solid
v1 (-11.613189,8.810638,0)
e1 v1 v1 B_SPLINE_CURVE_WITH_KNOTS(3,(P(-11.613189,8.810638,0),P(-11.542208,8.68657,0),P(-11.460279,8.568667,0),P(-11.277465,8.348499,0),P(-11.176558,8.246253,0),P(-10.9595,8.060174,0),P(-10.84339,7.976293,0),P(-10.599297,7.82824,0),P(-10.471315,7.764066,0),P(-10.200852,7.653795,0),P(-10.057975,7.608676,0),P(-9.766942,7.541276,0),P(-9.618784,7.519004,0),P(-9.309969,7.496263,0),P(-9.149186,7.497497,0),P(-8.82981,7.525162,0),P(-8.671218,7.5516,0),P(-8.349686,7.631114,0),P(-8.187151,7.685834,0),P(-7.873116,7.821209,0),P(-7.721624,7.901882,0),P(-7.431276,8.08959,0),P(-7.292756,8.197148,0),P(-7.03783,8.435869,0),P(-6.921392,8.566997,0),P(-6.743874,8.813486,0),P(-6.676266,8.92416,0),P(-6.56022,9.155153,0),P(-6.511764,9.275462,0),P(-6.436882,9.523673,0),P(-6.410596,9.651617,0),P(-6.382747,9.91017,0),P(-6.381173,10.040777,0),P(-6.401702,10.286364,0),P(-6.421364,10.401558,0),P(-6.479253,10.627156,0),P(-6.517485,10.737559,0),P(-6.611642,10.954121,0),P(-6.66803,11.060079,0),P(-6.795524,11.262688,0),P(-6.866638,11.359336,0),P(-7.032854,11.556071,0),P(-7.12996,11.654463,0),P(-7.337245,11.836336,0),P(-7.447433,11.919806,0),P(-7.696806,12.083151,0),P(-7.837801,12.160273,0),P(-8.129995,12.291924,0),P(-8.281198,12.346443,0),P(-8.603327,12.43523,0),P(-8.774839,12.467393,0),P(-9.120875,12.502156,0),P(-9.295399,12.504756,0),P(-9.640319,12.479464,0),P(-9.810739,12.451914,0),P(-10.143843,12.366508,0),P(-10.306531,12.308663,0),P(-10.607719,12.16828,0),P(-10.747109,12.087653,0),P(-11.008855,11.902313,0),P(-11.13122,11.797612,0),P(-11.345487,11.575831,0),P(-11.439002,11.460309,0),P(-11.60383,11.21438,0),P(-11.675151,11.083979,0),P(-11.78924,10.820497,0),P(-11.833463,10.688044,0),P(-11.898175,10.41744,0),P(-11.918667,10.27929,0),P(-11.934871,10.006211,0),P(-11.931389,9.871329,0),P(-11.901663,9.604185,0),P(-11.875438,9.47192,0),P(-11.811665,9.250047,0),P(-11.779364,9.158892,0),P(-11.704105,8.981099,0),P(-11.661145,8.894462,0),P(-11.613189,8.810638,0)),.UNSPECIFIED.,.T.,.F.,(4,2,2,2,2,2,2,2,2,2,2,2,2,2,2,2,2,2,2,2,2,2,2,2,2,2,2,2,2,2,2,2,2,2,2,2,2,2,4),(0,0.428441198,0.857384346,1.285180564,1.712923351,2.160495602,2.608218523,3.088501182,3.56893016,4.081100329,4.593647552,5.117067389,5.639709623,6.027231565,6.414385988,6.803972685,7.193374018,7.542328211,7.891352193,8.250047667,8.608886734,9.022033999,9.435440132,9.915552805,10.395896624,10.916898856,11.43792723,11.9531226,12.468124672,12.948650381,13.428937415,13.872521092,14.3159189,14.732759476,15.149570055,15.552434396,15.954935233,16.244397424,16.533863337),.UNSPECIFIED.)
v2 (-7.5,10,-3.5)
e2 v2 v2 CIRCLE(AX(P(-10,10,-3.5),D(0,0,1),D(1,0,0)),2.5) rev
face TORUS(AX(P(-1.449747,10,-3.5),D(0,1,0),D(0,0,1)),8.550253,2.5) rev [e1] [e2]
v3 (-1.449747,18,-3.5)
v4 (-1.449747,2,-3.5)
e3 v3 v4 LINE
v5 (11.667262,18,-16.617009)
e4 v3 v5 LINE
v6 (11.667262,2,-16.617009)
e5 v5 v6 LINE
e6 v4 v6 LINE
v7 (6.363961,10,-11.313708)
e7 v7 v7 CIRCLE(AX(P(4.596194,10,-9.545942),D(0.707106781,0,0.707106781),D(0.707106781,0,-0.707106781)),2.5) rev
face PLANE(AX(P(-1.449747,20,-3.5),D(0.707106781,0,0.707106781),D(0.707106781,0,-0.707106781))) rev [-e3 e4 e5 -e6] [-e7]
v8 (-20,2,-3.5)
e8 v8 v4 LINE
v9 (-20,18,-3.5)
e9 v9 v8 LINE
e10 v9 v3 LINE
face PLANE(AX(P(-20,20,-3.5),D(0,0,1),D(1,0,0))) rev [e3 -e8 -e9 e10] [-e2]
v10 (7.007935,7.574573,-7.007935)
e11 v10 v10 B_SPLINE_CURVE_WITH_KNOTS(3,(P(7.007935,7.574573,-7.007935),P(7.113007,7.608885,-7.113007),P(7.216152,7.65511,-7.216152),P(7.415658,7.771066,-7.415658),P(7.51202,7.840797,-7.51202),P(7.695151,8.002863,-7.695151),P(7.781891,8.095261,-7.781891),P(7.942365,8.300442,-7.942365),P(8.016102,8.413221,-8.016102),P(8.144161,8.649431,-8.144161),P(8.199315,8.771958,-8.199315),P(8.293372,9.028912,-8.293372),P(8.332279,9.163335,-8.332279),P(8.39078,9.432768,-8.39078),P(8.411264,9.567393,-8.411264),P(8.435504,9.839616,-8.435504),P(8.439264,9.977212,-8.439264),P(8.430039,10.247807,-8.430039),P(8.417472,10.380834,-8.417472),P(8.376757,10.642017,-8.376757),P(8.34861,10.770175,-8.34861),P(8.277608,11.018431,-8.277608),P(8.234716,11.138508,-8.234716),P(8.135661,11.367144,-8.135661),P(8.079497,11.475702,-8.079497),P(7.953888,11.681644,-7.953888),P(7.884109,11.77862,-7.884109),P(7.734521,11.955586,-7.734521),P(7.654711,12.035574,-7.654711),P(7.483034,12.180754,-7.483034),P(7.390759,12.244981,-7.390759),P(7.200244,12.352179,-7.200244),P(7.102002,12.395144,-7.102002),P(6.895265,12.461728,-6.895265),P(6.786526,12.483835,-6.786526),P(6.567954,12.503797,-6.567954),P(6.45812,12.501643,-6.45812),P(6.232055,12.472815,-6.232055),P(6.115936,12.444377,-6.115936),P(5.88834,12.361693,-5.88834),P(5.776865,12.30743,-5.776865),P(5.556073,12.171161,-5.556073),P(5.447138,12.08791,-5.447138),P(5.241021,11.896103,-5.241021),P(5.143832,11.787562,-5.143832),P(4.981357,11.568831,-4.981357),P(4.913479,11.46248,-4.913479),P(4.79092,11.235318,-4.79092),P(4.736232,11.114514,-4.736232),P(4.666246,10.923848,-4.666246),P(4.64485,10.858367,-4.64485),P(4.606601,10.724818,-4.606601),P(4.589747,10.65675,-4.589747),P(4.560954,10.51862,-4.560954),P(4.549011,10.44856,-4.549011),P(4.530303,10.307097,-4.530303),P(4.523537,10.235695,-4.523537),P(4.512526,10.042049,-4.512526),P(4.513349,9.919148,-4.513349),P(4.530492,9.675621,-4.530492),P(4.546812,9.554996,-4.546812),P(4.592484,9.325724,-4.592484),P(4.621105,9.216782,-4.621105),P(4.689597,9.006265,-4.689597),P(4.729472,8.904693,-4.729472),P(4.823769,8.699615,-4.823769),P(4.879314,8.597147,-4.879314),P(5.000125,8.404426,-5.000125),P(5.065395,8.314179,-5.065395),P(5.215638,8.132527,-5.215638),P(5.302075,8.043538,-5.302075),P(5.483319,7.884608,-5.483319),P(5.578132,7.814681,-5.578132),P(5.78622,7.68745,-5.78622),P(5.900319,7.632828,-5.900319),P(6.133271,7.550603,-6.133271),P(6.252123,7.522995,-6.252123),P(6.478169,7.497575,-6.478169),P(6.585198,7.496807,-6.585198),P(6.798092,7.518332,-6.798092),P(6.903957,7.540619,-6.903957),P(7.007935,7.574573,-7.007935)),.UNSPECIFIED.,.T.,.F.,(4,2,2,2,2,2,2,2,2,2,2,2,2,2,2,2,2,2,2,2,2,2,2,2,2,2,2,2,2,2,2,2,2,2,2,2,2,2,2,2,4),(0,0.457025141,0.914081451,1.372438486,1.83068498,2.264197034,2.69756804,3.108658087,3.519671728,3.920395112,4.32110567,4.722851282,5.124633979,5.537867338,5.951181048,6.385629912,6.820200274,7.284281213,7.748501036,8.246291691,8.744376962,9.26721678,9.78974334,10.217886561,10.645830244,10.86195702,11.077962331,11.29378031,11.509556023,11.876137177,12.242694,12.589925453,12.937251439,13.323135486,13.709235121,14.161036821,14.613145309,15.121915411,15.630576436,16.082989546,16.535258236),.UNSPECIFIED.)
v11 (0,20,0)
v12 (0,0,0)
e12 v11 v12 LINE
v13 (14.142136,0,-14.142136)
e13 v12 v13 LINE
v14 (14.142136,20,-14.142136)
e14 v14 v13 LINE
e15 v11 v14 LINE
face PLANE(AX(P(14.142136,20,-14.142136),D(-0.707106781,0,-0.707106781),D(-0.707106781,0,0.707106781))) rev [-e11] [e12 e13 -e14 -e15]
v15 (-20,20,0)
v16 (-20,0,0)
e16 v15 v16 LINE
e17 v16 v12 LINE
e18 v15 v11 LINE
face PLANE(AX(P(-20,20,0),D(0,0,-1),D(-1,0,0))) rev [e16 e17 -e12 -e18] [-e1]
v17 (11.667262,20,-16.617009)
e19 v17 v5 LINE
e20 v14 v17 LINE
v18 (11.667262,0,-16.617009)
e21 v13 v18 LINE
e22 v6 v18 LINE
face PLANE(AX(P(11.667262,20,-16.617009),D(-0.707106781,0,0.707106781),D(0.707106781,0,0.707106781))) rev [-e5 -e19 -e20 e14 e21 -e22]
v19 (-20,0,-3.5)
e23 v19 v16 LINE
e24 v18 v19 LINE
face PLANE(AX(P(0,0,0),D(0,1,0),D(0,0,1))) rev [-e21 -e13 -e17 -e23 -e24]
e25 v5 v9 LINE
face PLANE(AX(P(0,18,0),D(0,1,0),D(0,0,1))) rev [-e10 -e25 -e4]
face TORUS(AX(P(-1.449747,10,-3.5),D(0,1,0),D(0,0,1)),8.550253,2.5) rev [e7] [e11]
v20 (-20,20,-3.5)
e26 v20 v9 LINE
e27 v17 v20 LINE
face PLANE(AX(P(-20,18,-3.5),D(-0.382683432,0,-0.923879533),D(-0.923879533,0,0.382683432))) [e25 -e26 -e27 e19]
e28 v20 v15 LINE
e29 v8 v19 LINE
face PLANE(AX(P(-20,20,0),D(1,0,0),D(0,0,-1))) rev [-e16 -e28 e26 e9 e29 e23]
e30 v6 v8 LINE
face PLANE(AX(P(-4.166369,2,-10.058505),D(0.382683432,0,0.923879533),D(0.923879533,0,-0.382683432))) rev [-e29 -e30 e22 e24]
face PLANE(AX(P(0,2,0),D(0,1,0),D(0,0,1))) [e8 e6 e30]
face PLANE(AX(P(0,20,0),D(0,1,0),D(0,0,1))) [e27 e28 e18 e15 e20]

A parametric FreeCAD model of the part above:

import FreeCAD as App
import Part
import Sketcher

V = App.Vector
Q = App.Units.Quantity


def add_polygon(sketch, points):
    """Adds a closed chain of lines whose ends are joined by coincident constraints."""
    first, n = sketch.GeometryCount, len(points)
    for a, b in zip(points, points[1:] + points[:1]):
        sketch.addGeometry(Part.LineSegment(App.Vector(*a, 0), App.Vector(*b, 0)), False)
    for i in range(n):
        sketch.addConstraint(Sketcher.Constraint("Coincident", first + i, 2, first + (i + 1) % n, 1))

doc = App.newDocument("Part")
body = doc.addObject("PartDesign::Body", "Body")

# Sketch on XZ plane
sketch1 = body.newObject("Sketcher::SketchObject", "Sketch")
sketch1.AttachmentSupport = (doc.getObject("XZ_Plane"), [""])
sketch1.MapMode = "FlatFace"
add_polygon(sketch1, [(-1.4, -3.5), (-20, -3.5), (-20, 0), (0, 0), (14.1, -14.1), (11.7, -16.6)])  # lines 0-5
sketch1.addConstraint([
    Sketcher.Constraint("Horizontal", 0),
    Sketcher.Constraint("Vertical", 1),
    Sketcher.Constraint("Horizontal", 2),
    Sketcher.Constraint("Coincident", 2, 2, -1, 1),
    Sketcher.Constraint("Perpendicular", 3, 4),
    Sketcher.Constraint("Perpendicular", 4, 5),
    Sketcher.Constraint("DistanceX", 2, 1, 2, 2, 20.0),
    Sketcher.Constraint("Angle", 3, Q("-45 deg")),
    Sketcher.Constraint("Distance", 3, 20.0),
    Sketcher.Constraint("DistanceY", 1, 1, 1, 2, 3.5),
    Sketcher.Constraint("Distance", 4, 3.5),
])
pad1 = body.newObject("PartDesign::Pad", "Pad")
pad1.Profile = sketch1
pad1.Length = 20
pad1.Reversed = True

# Sketch on XZ plane
sketch2 = body.newObject("Sketcher::SketchObject", "Sketch001")
sketch2.AttachmentSupport = (doc.getObject("XZ_Plane"), [""])
sketch2.MapMode = "FlatFace"
sketch2.AttachmentOffset = App.Placement(V(0, 0, -20), App.Rotation())
add_polygon(sketch2, [(12, -17), (-20, -4), (-1, -4)])  # lines 0-2
sketch2.addConstraint([
    Sketcher.Constraint("Horizontal", 1),
    Sketcher.Constraint("Angle", 2, Q("-45 deg")),
    Sketcher.Constraint("DistanceX", 0, 2, -1, 1, 20.0),
    Sketcher.Constraint("Angle", 0, Q("157.5 deg")),
    Sketcher.Constraint("DistanceY", 0, 2, -1, 1, 3.5),
    Sketcher.Constraint("DistanceX", 1, 1, 1, 2, 18.550253),
])
pad2 = body.newObject("PartDesign::Pad", "Pad001")
pad2.Profile = sketch2
pad2.Length = 2

# Sketch on XZ plane
sketch3 = body.newObject("Sketcher::SketchObject", "Sketch002")
sketch3.AttachmentSupport = (doc.getObject("XZ_Plane"), [""])
sketch3.MapMode = "FlatFace"
add_polygon(sketch3, [(12, -17), (-20, -4), (-1, -4)])  # lines 0-2
sketch3.addConstraint([
    Sketcher.Constraint("Horizontal", 1),
    Sketcher.Constraint("Angle", 2, Q("-45 deg")),
    Sketcher.Constraint("DistanceX", 0, 2, -1, 1, 20.0),
    Sketcher.Constraint("Angle", 0, Q("157.5 deg")),
    Sketcher.Constraint("DistanceY", 0, 2, -1, 1, 3.5),
    Sketcher.Constraint("DistanceX", 1, 1, 1, 2, 18.550253),
])
pad3 = body.newObject("PartDesign::Pad", "Pad002")
pad3.Profile = sketch3
pad3.Length = 2
pad3.Reversed = True

# Sketch on XY plane
sketch4 = body.newObject("Sketcher::SketchObject", "Sketch003")
sketch4.AttachmentSupport = (doc.getObject("XY_Plane"), [""])
sketch4.MapMode = "FlatFace"
sketch4.AttachmentOffset = App.Placement(V(0, 0, -3.5), App.Rotation())
sketch4.addGeometry(Part.Circle(V(-10, 10, 0), V(0, 0, 1), 2.5), False)
sketch4.addGeometry(Part.LineSegment(V(-1.4, 10, 0), V(-1.4, 0, 0)), True)  # axis
sketch4.addConstraint([
    Sketcher.Constraint("Vertical", 1),
    Sketcher.Constraint("PointOnObject", 1, 2, -1),
    Sketcher.Constraint("Horizontal", 0, 3, 1, 1),
    Sketcher.Constraint("Diameter", 0, 5.0),
    Sketcher.Constraint("DistanceY", 1, 2, 1, 1, 10.0),
    Sketcher.Constraint("DistanceX", 0, 3, -1, 1, 10.0),
    Sketcher.Constraint("DistanceX", 1, 1, -1, 1, 1.449747),
])
groove = body.newObject("PartDesign::Groove", "Groove")
groove.Profile = sketch4
groove.ReferenceAxis = (sketch4, ["Axis0"])
groove.Angle = 360

doc.recompute()
